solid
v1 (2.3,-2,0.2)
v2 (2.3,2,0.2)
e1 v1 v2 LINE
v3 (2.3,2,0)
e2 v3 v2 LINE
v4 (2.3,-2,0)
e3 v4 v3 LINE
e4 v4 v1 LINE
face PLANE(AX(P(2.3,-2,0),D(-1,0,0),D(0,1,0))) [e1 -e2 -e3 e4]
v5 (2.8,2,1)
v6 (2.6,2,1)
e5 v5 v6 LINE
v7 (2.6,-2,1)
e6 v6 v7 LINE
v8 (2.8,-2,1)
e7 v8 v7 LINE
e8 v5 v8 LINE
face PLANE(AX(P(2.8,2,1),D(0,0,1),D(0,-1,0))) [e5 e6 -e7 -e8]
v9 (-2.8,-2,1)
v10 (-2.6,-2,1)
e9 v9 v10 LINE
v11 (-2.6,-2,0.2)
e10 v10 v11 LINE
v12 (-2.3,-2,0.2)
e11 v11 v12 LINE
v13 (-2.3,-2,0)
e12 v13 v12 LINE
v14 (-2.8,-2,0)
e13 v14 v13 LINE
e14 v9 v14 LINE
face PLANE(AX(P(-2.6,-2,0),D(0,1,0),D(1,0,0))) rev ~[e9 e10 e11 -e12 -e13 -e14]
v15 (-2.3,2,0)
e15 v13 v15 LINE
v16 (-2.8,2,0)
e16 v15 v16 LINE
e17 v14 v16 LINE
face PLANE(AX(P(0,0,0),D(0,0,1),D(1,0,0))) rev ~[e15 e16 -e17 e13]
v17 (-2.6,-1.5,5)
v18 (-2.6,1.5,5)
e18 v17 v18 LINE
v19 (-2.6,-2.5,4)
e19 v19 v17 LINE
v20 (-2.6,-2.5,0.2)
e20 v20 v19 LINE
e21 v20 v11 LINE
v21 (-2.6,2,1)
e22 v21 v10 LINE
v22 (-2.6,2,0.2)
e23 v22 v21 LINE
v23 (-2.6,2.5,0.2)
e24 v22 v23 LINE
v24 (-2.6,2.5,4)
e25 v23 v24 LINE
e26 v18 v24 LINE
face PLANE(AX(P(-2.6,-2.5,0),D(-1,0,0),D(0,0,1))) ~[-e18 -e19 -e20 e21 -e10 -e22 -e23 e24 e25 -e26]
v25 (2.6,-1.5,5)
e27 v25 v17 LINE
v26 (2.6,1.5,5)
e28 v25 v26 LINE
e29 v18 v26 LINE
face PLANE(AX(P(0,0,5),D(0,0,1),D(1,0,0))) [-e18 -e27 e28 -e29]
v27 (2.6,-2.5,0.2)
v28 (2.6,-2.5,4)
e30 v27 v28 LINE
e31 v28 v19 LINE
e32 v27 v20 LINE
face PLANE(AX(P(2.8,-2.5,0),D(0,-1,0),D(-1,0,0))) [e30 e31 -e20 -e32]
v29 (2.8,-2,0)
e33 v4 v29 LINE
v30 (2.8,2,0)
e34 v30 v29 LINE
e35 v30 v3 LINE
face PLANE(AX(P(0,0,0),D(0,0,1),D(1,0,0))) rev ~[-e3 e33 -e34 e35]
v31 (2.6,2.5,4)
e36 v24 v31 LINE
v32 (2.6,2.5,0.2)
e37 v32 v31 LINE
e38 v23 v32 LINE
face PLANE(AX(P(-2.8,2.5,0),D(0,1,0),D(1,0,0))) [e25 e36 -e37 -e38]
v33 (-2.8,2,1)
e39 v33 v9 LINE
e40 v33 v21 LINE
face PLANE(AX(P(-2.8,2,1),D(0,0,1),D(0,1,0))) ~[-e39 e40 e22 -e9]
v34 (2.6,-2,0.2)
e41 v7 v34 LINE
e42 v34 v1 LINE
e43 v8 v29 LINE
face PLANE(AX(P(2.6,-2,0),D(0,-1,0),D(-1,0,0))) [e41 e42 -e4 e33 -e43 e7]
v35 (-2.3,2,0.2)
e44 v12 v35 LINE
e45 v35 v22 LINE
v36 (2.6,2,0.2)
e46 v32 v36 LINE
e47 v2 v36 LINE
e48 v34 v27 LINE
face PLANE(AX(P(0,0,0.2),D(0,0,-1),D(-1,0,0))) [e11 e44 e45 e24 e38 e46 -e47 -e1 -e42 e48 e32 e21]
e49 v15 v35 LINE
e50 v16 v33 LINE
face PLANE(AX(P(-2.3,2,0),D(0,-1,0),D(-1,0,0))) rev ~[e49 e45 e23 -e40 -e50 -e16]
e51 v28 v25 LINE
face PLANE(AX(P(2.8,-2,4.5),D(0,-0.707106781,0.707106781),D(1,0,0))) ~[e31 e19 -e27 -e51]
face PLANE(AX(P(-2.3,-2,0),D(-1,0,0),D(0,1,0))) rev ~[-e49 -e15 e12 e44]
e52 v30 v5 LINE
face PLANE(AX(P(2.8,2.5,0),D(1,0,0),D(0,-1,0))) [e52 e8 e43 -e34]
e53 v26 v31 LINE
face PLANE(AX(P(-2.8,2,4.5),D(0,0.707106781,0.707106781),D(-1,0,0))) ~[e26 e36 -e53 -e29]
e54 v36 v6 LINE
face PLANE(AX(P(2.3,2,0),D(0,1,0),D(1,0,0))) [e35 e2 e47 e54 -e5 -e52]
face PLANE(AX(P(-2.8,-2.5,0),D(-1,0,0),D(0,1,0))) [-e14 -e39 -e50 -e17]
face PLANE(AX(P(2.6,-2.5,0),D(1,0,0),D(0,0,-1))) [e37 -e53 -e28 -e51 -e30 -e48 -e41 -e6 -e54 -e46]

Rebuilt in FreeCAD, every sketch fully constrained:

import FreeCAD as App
import Part
import Sketcher
from FreeCAD import Vector
Q = App.Units.Quantity


def edges_at(feature, points):
    """Names of the edges that pass closest to the given points."""
    edges = feature.Shape.Edges
    near = lambda p: min(range(len(edges)), key=lambda i: edges[i].distToShape(Part.Vertex(*p))[0])
    return sorted({f"Edge{near(p) + 1}" for p in points})

doc = App.newDocument("Part")
body = doc.addObject("PartDesign::Body", "Body")

sketch1 = body.newObject("Sketcher::SketchObject", "Sketch")
sketch1.AttachmentSupport = (doc.getObject("XY_Plane"), [""])
sketch1.MapMode = "FlatFace"
sketch1.addGeometry(Part.LineSegment(Vector(2.8, 2.5, 0), Vector(-2.8, 2.5, 0)), False)
sketch1.addGeometry(Part.LineSegment(Vector(-2.8, 2.5, 0), Vector(-2.8, -2.5, 0)), False)
sketch1.addGeometry(Part.LineSegment(Vector(-2.8, -2.5, 0), Vector(2.8, -2.5, 0)), False)
sketch1.addGeometry(Part.LineSegment(Vector(2.8, -2.5, 0), Vector(2.8, 2.5, 0)), False)
sketch1.addConstraint(Sketcher.Constraint("Coincident", 0, 2, 1, 1))
sketch1.addConstraint(Sketcher.Constraint("Coincident", 1, 2, 2, 1))
sketch1.addConstraint(Sketcher.Constraint("Coincident", 2, 2, 3, 1))
sketch1.addConstraint(Sketcher.Constraint("Coincident", 3, 2, 0, 1))
sketch1.addConstraint(Sketcher.Constraint("Horizontal", 0))
sketch1.addConstraint(Sketcher.Constraint("Vertical", 1))
sketch1.addConstraint(Sketcher.Constraint("Horizontal", 2))
sketch1.addConstraint(Sketcher.Constraint("Vertical", 3))
sketch1.addConstraint(Sketcher.Constraint("Symmetric", 0, 2, 2, 2, -1, 1))
sketch1.addConstraint(Sketcher.Constraint("DistanceY", 1, 2, 1, 1, Q("5 mm")))
sketch1.addConstraint(Sketcher.Constraint("DistanceX", 0, 2, 0, 1, Q("5.6 mm")))
pad1 = body.newObject("PartDesign::Pad", "Pad")
pad1.Profile = sketch1
pad1.Length = 5
doc.recompute()

chamfer = body.newObject("PartDesign::Chamfer", "Chamfer")
chamfer.Base = (pad1, edges_at(pad1, [(0, -2.5, 5), (0, 2.5, 5)]))
chamfer.Size = 1

sketch2 = body.newObject("Sketcher::SketchObject", "Sketch001")
sketch2.AttachmentSupport = (doc.getObject("YZ_Plane"), [""])
sketch2.MapMode = "FlatFace"
sketch2.AttachmentOffset = App.Placement(Vector(0, 0, 2.8), App.Rotation())
sketch2.addGeometry(Part.LineSegment(Vector(2.5, 4, 0), Vector(1.5, 5, 0)), False)
sketch2.addGeometry(Part.LineSegment(Vector(1.5, 5, 0), Vector(-1.5, 5, 0)), False)
sketch2.addGeometry(Part.LineSegment(Vector(-1.5, 5, 0), Vector(-2.5, 4, 0)), False)
sketch2.addGeometry(Part.LineSegment(Vector(-2.5, 4, 0), Vector(-2.5, 0, 0)), False)
sketch2.addGeometry(Part.LineSegment(Vector(-2.5, 0, 0), Vector(-2, 0, 0)), False)
sketch2.addGeometry(Part.LineSegment(Vector(-2, 0, 0), Vector(-2, 1, 0)), False)
sketch2.addGeometry(Part.LineSegment(Vector(-2, 1, 0), Vector(2, 1, 0)), False)
sketch2.addGeometry(Part.LineSegment(Vector(2, 1, 0), Vector(2, 0, 0)), False)
sketch2.addGeometry(Part.LineSegment(Vector(2, 0, 0), Vector(2.5, 0, 0)), False)
sketch2.addGeometry(Part.LineSegment(Vector(2.5, 0, 0), Vector(2.5, 4, 0)), False)
sketch2.addConstraint(Sketcher.Constraint("Coincident", 0, 2, 1, 1))
sketch2.addConstraint(Sketcher.Constraint("Coincident", 1, 2, 2, 1))
sketch2.addConstraint(Sketcher.Constraint("Coincident", 2, 2, 3, 1))
sketch2.addConstraint(Sketcher.Constraint("Coincident", 3, 2, 4, 1))
sketch2.addConstraint(Sketcher.Constraint("Coincident", 4, 2, 5, 1))
sketch2.addConstraint(Sketcher.Constraint("Coincident", 5, 2, 6, 1))
sketch2.addConstraint(Sketcher.Constraint("Coincident", 6, 2, 7, 1))
sketch2.addConstraint(Sketcher.Constraint("Coincident", 7, 2, 8, 1))
sketch2.addConstraint(Sketcher.Constraint("Coincident", 8, 2, 9, 1))
sketch2.addConstraint(Sketcher.Constraint("Coincident", 9, 2, 0, 1))
sketch2.addConstraint(Sketcher.Constraint("Horizontal", 1))
sketch2.addConstraint(Sketcher.Constraint("Vertical", 3))
sketch2.addConstraint(Sketcher.Constraint("Horizontal", 4))
sketch2.addConstraint(Sketcher.Constraint("Vertical", 5))
sketch2.addConstraint(Sketcher.Constraint("Horizontal", 6))
sketch2.addConstraint(Sketcher.Constraint("Vertical", 7))
sketch2.addConstraint(Sketcher.Constraint("Horizontal", 8))
sketch2.addConstraint(Sketcher.Constraint("Vertical", 9))
sketch2.addConstraint(Sketcher.Constraint("Symmetric", 4, 2, 7, 2, -1, 1))
sketch2.addConstraint(Sketcher.Constraint("Symmetric", 3, 2, 8, 2, -2))
sketch2.addConstraint(Sketcher.Constraint("Perpendicular", 0, 2))
sketch2.addConstraint(Sketcher.Constraint("Horizontal", 2, 2, 9, 2))
sketch2.addConstraint(Sketcher.Constraint("Equal", 6, 3))
sketch2.addConstraint(Sketcher.Constraint("Equal", 0, 2))
sketch2.addConstraint(Sketcher.Constraint("DistanceY", 5, 1, 5, 2, Q("1 mm")))
sketch2.addConstraint(Sketcher.Constraint("DistanceX", 4, 1, 4, 2, Q("0.5 mm")))
sketch2.addConstraint(Sketcher.Constraint("DistanceX", 2, 2, 1, 2, Q("1 mm")))
sketch2.addConstraint(Sketcher.Constraint("DistanceX", 1, 2, 1, 1, Q("3 mm")))
pocket1 = body.newObject("PartDesign::Pocket", "Pocket")
pocket1.Profile = sketch2
pocket1.Length = 0.2
doc.recompute()

mirrored = body.newObject("PartDesign::Mirrored", "Mirrored")
mirrored.Originals = [pocket1]
mirrored.MirrorPlane = (doc.getObject("YZ_Plane"), [""])
body.Tip = mirrored

sketch3 = body.newObject("Sketcher::SketchObject", "Sketch002")
sketch3.AttachmentSupport = (doc.getObject("XY_Plane"), [""])
sketch3.MapMode = "FlatFace"
sketch3.addGeometry(Part.LineSegment(Vector(2.6, -2.5, 0), Vector(-2.6, -2.5, 0)), False)
sketch3.addGeometry(Part.LineSegment(Vector(-2.6, -2.5, 0), Vector(-2.6, -2, 0)), False)
sketch3.addGeometry(Part.LineSegment(Vector(-2.6, -2, 0), Vector(-2.3, -2, 0)), False)
sketch3.addGeometry(Part.LineSegment(Vector(-2.3, -2, 0), Vector(-2.3, 2, 0)), False)
sketch3.addGeometry(Part.LineSegment(Vector(-2.3, 2, 0), Vector(-2.6, 2, 0)), False)
sketch3.addGeometry(Part.LineSegment(Vector(-2.6, 2, 0), Vector(-2.6, 2.5, 0)), False)
sketch3.addGeometry(Part.LineSegment(Vector(-2.6, 2.5, 0), Vector(2.6, 2.5, 0)), False)
sketch3.addGeometry(Part.LineSegment(Vector(2.6, 2.5, 0), Vector(2.6, 2, 0)), False)
sketch3.addGeometry(Part.LineSegment(Vector(2.6, 2, 0), Vector(2.3, 2, 0)), False)
sketch3.addGeometry(Part.LineSegment(Vector(2.3, 2, 0), Vector(2.3, -2, 0)), False)
sketch3.addGeometry(Part.LineSegment(Vector(2.3, -2, 0), Vector(2.6, -2, 0)), False)
sketch3.addGeometry(Part.LineSegment(Vector(2.6, -2, 0), Vector(2.6, -2.5, 0)), False)
sketch3.addConstraint(Sketcher.Constraint("Coincident", 0, 2, 1, 1))
sketch3.addConstraint(Sketcher.Constraint("Coincident", 1, 2, 2, 1))
sketch3.addConstraint(Sketcher.Constraint("Coincident", 2, 2, 3, 1))
sketch3.addConstraint(Sketcher.Constraint("Coincident", 3, 2, 4, 1))
sketch3.addConstraint(Sketcher.Constraint("Coincident", 4, 2, 5, 1))
sketch3.addConstraint(Sketcher.Constraint("Coincident", 5, 2, 6, 1))
sketch3.addConstraint(Sketcher.Constraint("Coincident", 6, 2, 7, 1))
sketch3.addConstraint(Sketcher.Constraint("Coincident", 7, 2, 8, 1))
sketch3.addConstraint(Sketcher.Constraint("Coincident", 8, 2, 9, 1))
sketch3.addConstraint(Sketcher.Constraint("Coincident", 9, 2, 10, 1))
sketch3.addConstraint(Sketcher.Constraint("Coincident", 10, 2, 11, 1))
sketch3.addConstraint(Sketcher.Constraint("Coincident", 11, 2, 0, 1))
sketch3.addConstraint(Sketcher.Constraint("Horizontal", 0))
sketch3.addConstraint(Sketcher.Constraint("Vertical", 1))
sketch3.addConstraint(Sketcher.Constraint("Horizontal", 2))
sketch3.addConstraint(Sketcher.Constraint("Vertical", 3))
sketch3.addConstraint(Sketcher.Constraint("Horizontal", 4))
sketch3.addConstraint(Sketcher.Constraint("Vertical", 5))
sketch3.addConstraint(Sketcher.Constraint("Horizontal", 6))
sketch3.addConstraint(Sketcher.Constraint("Vertical", 7))
sketch3.addConstraint(Sketcher.Constraint("Horizontal", 8))
sketch3.addConstraint(Sketcher.Constraint("Vertical", 9))
sketch3.addConstraint(Sketcher.Constraint("Horizontal", 10))
sketch3.addConstraint(Sketcher.Constraint("Vertical", 11))
sketch3.addConstraint(Sketcher.Constraint("Symmetric", 0, 2, 6, 2, -1, 1))
sketch3.addConstraint(Sketcher.Constraint("Symmetric", 2, 2, 8, 2, -1, 1))
sketch3.addConstraint(Sketcher.Constraint("Symmetric", 4, 2, 10, 2, -1, 1))
sketch3.addConstraint(Sketcher.Constraint("Symmetric", 4, 2, 7, 2, -2))
sketch3.addConstraint(Sketcher.Constraint("DistanceY", 3, 1, 3, 2, Q("4 mm")))
sketch3.addConstraint(Sketcher.Constraint("DistanceY", 1, 1, 1, 2, Q("0.5 mm")))
sketch3.addConstraint(Sketcher.Constraint("DistanceX", 0, 2, 0, 1, Q("5.2 mm")))
sketch3.addConstraint(Sketcher.Constraint("DistanceX", 2, 1, 2, 2, Q("0.3 mm")))
pocket2 = body.newObject("PartDesign::Pocket", "Pocket001")
pocket2.Profile = sketch3
pocket2.Length = 0.2
pocket2.Reversed = True

doc.recompute()
